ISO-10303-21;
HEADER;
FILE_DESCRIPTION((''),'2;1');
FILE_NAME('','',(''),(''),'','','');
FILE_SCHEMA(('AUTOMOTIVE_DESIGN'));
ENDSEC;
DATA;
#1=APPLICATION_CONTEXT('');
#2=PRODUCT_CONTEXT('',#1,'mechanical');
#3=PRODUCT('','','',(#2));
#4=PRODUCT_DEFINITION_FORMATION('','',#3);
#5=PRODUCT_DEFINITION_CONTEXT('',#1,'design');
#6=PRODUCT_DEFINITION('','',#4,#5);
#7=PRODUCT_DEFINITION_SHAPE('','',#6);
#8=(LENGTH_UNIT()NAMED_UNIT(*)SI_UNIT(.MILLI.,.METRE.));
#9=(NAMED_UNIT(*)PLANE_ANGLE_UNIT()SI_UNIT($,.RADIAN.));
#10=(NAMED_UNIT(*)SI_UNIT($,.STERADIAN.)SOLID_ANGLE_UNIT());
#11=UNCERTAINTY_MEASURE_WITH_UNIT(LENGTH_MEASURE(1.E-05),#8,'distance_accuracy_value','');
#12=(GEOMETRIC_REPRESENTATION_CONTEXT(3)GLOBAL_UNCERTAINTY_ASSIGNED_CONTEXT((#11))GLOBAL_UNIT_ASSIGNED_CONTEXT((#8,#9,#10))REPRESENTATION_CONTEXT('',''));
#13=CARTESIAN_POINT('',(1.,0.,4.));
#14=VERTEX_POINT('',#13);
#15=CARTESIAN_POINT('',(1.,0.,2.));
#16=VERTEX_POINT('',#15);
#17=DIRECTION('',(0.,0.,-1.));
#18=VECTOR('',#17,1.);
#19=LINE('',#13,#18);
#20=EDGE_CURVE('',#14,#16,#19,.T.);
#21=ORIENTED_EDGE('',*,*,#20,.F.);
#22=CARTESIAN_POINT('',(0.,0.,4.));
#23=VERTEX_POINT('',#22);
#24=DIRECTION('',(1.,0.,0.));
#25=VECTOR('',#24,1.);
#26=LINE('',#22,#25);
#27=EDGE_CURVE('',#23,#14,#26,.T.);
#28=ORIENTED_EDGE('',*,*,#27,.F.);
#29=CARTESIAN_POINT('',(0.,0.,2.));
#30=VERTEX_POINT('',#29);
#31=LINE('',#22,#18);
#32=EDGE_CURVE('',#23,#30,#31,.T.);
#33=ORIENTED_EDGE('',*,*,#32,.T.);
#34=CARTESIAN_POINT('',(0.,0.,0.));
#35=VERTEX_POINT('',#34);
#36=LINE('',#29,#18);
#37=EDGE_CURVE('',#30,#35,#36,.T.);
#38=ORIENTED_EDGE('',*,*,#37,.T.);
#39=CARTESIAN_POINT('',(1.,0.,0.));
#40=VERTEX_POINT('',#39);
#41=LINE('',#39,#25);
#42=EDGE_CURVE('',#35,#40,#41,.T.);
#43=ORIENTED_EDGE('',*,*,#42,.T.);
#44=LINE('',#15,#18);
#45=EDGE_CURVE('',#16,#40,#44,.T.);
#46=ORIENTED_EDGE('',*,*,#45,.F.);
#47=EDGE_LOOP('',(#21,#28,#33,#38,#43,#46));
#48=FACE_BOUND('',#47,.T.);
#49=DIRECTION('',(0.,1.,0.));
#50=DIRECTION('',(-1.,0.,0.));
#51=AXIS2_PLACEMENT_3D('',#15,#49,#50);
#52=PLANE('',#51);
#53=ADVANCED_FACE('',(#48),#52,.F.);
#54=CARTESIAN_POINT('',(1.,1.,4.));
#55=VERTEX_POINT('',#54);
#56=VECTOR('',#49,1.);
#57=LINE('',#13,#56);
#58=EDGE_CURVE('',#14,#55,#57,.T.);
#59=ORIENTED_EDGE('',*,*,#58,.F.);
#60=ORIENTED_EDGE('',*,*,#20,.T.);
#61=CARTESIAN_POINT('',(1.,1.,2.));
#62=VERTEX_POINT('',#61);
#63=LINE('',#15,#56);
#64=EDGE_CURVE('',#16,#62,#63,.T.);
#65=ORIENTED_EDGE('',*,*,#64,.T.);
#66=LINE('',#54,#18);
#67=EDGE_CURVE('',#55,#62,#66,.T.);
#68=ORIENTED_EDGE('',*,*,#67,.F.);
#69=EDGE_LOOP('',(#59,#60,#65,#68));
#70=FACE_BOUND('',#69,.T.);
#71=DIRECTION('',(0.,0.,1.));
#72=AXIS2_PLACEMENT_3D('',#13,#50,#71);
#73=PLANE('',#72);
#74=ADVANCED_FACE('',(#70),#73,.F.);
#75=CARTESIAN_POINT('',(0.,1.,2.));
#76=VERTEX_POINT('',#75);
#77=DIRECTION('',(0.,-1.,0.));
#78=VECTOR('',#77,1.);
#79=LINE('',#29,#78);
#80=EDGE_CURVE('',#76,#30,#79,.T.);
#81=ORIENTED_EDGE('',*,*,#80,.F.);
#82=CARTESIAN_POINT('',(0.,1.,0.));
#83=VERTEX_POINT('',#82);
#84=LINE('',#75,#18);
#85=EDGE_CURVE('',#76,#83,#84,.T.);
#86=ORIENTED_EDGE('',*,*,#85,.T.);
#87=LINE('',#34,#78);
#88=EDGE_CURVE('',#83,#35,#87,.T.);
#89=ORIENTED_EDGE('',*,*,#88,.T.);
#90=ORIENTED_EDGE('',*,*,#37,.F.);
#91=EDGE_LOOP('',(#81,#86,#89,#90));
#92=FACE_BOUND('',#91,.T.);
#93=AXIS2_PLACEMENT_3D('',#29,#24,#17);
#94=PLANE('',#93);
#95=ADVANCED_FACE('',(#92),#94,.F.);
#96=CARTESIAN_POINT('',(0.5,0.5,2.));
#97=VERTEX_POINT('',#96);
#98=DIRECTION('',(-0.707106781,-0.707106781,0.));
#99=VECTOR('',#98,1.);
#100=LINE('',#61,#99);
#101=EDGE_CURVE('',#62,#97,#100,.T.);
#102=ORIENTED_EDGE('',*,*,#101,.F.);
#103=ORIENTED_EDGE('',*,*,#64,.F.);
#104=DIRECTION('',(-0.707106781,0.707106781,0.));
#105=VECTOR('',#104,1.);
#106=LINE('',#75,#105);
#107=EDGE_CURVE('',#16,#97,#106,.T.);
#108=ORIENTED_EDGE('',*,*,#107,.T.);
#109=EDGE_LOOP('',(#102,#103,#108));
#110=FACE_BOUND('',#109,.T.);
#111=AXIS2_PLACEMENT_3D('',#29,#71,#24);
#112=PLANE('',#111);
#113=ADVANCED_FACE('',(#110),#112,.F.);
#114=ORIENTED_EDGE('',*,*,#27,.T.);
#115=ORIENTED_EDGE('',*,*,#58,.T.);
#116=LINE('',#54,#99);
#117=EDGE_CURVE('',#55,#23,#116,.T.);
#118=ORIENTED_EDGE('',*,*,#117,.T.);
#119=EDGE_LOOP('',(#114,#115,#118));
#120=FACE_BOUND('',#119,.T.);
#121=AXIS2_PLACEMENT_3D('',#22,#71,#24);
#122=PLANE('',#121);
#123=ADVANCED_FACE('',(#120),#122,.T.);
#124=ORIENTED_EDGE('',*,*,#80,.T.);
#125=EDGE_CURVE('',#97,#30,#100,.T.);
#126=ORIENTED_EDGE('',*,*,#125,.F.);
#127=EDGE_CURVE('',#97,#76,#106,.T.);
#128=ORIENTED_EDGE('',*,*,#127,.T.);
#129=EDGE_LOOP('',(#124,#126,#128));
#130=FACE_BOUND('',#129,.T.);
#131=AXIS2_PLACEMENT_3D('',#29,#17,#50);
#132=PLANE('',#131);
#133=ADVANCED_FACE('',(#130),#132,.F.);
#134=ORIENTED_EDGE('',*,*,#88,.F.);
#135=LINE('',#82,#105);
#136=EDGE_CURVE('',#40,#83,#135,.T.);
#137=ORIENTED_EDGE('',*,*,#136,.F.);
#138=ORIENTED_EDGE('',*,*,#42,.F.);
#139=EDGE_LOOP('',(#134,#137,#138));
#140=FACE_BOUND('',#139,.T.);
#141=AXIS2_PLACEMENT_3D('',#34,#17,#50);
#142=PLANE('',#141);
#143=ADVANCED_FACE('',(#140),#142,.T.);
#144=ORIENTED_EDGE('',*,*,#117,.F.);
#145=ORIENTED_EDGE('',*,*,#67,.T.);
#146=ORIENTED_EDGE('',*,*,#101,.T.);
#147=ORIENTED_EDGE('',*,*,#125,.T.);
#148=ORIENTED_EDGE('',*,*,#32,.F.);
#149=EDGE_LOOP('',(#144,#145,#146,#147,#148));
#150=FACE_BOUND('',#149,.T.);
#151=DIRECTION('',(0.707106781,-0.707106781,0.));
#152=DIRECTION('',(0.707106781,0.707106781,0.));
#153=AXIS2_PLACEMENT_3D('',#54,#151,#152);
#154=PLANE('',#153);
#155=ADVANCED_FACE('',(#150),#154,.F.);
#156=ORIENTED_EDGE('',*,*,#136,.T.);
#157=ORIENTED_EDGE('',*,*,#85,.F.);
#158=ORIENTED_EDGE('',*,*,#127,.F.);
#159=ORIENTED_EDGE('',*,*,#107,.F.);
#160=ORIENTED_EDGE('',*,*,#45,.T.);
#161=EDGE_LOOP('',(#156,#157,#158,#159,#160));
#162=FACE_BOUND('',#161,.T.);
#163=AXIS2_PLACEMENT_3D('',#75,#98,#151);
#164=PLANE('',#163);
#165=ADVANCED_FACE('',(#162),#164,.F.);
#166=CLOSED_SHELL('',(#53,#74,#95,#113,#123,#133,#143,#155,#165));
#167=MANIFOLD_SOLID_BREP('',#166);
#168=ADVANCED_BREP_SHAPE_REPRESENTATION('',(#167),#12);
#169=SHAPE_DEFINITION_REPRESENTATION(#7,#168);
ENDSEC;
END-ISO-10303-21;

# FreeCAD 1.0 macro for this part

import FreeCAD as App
import Part
import Sketcher

V = App.Vector
Q = App.Units.Quantity


def add_polygon(sketch, points):
    """Adds a closed chain of lines whose ends are joined by coincident constraints."""
    first, n = sketch.GeometryCount, len(points)
    for a, b in zip(points, points[1:] + points[:1]):
        sketch.addGeometry(Part.LineSegment(App.Vector(*a, 0), App.Vector(*b, 0)), False)
    for i in range(n):
        sketch.addConstraint(Sketcher.Constraint("Coincident", first + i, 2, first + (i + 1) % n, 1))

doc = App.newDocument("Part")
body = doc.addObject("PartDesign::Body", "Body")

sketch1 = body.newObject("Sketcher::SketchObject", "Sketch")
sketch1.AttachmentSupport = (doc.getObject("XY_Plane"), [""])
sketch1.MapMode = "FlatFace"
add_polygon(sketch1, [(0, 1), (0, 0), (1, 0)])
sketch1.addConstraint([
    Sketcher.Constraint("Vertical", 0),
    Sketcher.Constraint("Horizontal", 1),
    Sketcher.Constraint("Coincident", 0, 2, -1, 1),
    Sketcher.Constraint("Equal", 1, 0),
    Sketcher.Constraint("DistanceX", 1, 1, 1, 2, Q("1 mm")),
])
pad1 = body.newObject("PartDesign::Pad", "Pad")
pad1.Profile = sketch1
pad1.Length = 2

sketch2 = body.newObject("Sketcher::SketchObject", "Sketch001")
sketch2.AttachmentSupport = (doc.getObject("XY_Plane"), [""])
sketch2.MapMode = "FlatFace"
sketch2.AttachmentOffset = App.Placement(V(0, 0, 2), App.Rotation())
add_polygon(sketch2, [(1, 0), (1, 1), (0, 0)])
sketch2.addConstraint([
    Sketcher.Constraint("Vertical", 0),
    Sketcher.Constraint("Horizontal", 2),
    Sketcher.Constraint("Coincident", 1, 2, -1, 1),
    Sketcher.Constraint("Equal", 2, 0),
    Sketcher.Constraint("DistanceX", 2, 1, 2, 2, Q("1 mm")),
])
pad2 = body.newObject("PartDesign::Pad", "Pad001")
pad2.Profile = sketch2
pad2.Length = 2

doc.recompute()
